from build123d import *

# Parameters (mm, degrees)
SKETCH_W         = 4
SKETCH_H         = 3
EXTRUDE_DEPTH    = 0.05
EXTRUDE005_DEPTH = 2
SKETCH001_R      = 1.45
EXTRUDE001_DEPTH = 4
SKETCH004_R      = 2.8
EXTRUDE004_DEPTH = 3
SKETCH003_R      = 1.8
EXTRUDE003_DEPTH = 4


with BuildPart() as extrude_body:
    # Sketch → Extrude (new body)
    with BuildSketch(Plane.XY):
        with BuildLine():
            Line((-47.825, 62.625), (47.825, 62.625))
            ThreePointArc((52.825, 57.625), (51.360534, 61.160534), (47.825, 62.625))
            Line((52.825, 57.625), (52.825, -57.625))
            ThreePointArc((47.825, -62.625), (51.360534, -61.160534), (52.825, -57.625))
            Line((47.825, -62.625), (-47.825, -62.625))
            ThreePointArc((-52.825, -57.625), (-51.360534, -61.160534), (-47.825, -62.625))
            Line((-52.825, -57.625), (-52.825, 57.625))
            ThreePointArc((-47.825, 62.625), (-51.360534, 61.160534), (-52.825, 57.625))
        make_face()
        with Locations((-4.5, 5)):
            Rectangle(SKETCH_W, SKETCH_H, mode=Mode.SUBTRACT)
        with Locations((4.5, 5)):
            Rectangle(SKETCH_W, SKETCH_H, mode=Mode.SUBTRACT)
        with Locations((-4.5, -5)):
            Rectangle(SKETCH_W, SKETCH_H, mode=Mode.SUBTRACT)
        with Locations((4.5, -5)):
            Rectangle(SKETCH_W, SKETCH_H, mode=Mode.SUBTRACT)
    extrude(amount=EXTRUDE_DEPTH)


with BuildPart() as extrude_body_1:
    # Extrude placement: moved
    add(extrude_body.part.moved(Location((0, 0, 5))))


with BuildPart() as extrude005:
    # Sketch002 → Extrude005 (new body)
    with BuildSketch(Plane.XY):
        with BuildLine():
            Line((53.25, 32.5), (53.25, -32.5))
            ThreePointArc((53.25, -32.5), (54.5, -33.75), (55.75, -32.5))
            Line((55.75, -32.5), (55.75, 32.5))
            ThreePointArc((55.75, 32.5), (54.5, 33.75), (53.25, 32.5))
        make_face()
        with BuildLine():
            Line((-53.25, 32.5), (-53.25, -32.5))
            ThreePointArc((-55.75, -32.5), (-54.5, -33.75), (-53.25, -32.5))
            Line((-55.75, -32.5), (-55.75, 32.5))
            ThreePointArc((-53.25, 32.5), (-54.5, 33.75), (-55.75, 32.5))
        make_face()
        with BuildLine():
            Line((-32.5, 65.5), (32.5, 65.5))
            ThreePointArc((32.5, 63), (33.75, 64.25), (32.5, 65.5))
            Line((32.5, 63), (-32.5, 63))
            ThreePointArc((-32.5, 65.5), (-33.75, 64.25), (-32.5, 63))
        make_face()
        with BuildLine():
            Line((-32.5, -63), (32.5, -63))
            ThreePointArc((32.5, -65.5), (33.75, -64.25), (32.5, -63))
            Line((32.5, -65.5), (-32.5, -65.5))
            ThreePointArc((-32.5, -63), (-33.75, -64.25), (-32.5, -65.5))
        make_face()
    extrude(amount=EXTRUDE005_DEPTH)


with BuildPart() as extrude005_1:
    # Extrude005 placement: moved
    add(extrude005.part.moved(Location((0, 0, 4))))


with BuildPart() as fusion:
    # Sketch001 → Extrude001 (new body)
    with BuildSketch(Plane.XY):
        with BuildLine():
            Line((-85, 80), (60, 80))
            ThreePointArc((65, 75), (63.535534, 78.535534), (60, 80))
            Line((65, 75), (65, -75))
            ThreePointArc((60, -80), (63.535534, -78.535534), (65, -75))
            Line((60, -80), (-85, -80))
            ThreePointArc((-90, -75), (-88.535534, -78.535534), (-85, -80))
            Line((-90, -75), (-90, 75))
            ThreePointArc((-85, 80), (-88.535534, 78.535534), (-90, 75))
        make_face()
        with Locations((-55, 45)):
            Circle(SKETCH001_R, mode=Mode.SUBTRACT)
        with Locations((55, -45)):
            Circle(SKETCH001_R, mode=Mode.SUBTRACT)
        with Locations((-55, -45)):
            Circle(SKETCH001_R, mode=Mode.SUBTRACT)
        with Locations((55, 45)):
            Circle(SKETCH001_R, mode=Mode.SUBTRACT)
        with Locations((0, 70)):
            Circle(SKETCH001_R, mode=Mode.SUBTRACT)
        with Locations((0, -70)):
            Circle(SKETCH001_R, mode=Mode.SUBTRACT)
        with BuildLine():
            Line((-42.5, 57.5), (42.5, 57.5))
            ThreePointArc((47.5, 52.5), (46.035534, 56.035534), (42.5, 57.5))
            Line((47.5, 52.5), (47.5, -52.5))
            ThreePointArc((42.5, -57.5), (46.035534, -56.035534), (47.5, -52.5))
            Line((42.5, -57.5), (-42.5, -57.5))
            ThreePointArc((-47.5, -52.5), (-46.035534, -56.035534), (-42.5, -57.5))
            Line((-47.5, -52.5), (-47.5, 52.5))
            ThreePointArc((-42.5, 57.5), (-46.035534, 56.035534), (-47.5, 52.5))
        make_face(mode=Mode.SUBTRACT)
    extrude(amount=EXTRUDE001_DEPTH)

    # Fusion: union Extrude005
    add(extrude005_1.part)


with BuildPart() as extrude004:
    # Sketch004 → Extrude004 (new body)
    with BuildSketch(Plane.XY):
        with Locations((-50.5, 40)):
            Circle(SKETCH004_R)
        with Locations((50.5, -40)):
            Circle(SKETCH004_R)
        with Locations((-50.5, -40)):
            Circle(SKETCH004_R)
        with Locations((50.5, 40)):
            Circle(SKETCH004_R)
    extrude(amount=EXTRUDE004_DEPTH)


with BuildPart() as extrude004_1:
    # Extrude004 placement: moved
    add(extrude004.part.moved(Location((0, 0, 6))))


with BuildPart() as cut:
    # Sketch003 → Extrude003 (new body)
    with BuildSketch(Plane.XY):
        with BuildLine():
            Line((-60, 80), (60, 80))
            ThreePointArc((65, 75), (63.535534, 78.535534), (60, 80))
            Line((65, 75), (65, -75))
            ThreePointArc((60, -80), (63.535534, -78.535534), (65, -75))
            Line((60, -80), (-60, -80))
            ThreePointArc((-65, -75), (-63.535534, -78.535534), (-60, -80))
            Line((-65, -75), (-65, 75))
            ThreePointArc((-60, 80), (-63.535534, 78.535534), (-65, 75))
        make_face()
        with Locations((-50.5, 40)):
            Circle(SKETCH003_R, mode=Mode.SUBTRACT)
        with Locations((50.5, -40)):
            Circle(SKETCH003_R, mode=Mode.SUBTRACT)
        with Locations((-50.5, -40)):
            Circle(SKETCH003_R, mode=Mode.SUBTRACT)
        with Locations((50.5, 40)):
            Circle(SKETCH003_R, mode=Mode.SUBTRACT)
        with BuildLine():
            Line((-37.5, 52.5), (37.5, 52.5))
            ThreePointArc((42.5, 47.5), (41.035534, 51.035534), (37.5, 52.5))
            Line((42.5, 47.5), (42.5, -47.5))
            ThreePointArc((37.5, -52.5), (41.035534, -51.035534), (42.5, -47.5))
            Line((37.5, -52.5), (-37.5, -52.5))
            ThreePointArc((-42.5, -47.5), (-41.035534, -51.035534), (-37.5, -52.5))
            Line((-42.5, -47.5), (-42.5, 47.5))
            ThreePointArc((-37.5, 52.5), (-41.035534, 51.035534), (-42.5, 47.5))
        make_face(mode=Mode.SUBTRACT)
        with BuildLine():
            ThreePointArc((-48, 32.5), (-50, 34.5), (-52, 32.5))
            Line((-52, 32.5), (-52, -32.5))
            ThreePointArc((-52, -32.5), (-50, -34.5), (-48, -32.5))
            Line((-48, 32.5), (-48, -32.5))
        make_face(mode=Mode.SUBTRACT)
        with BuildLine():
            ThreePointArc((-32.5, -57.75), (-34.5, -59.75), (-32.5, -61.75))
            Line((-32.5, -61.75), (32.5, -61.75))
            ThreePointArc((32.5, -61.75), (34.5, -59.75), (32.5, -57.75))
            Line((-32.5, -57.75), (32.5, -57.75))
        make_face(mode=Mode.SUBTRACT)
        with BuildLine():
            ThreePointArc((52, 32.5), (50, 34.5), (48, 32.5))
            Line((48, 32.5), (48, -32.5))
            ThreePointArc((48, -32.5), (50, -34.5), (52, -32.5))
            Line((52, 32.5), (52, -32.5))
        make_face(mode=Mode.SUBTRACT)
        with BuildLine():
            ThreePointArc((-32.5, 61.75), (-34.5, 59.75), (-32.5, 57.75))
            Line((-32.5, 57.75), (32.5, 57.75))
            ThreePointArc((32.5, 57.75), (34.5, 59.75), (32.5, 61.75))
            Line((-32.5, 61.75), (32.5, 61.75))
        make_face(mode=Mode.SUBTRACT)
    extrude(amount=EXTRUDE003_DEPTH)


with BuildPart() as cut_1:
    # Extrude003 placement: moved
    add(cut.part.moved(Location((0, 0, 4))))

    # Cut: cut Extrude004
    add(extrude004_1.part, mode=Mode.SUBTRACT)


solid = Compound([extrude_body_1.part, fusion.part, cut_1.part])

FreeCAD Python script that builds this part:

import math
import FreeCAD as App
import Part
import Sketcher


def add_polygon(sketch, points):
    """Adds a closed chain of lines whose ends are joined by coincident constraints."""
    first, n = sketch.GeometryCount, len(points)
    for a, b in zip(points, points[1:] + points[:1]):
        sketch.addGeometry(Part.LineSegment(App.Vector(*a, 0), App.Vector(*b, 0)), False)
    for i in range(n):
        sketch.addConstraint(Sketcher.Constraint("Coincident", first + i, 2, first + (i + 1) % n, 1))

doc = App.newDocument("Part")
body = doc.addObject("PartDesign::Body", "Body")

# Sketch on XY plane
sketch1 = doc.addObject("Sketcher::SketchObject", "Sketch")
body.addObject(sketch1)
sketch1.AttachmentSupport = (doc.XY_Plane, [""])
sketch1.MapMode = "FlatFace"
sketch1.addGeometry(Part.LineSegment(App.Vector(47.8, 62.6, 0), App.Vector(-47.8, 62.6, 0)), False)  # 0
sketch1.addGeometry(Part.ArcOfCircle(Part.Circle(App.Vector(-47.8, 57.6, 0), App.Vector(0, 0, 1), 5), math.radians(90), math.radians(180)), False)  # 1
sketch1.addGeometry(Part.LineSegment(App.Vector(-52.8, 57.6, 0), App.Vector(-52.8, -57.6, 0)), False)  # 2
sketch1.addGeometry(Part.ArcOfCircle(Part.Circle(App.Vector(-47.8, -57.6, 0), App.Vector(0, 0, 1), 5), math.radians(180), math.radians(270)), False)  # 3
sketch1.addGeometry(Part.LineSegment(App.Vector(-47.8, -62.6, 0), App.Vector(47.8, -62.6, 0)), False)  # 4
sketch1.addGeometry(Part.ArcOfCircle(Part.Circle(App.Vector(47.8, -57.6, 0), App.Vector(0, 0, 1), 5), math.radians(-90), math.radians(0)), False)  # 5
sketch1.addGeometry(Part.LineSegment(App.Vector(52.8, -57.6, 0), App.Vector(52.8, 57.6, 0)), False)  # 6
sketch1.addGeometry(Part.ArcOfCircle(Part.Circle(App.Vector(47.8, 57.6, 0), App.Vector(0, 0, 1), 5), math.radians(0), math.radians(90)), False)  # 7
add_polygon(sketch1, [(2.5, -6.5), (2.5, -3.5), (6.5, -3.5), (6.5, -6.5)])  # lines 8-11
add_polygon(sketch1, [(-6.5, -6.5), (-6.5, -3.5), (-2.5, -3.5), (-2.5, -6.5)])  # lines 12-15
add_polygon(sketch1, [(2.5, 3.5), (2.5, 6.5), (6.5, 6.5), (6.5, 3.5)])  # lines 16-19
add_polygon(sketch1, [(-6.5, 3.5), (-6.5, 6.5), (-2.5, 6.5), (-2.5, 3.5)])  # lines 20-23
sketch1.addConstraint(Sketcher.Constraint("Tangent", 0, 2, 1, 1))
sketch1.addConstraint(Sketcher.Constraint("Tangent", 1, 2, 2, 1))
sketch1.addConstraint(Sketcher.Constraint("Tangent", 2, 2, 3, 1))
sketch1.addConstraint(Sketcher.Constraint("Tangent", 3, 2, 4, 1))
sketch1.addConstraint(Sketcher.Constraint("Tangent", 4, 2, 5, 1))
sketch1.addConstraint(Sketcher.Constraint("Tangent", 5, 2, 6, 1))
sketch1.addConstraint(Sketcher.Constraint("Tangent", 6, 2, 7, 1))
sketch1.addConstraint(Sketcher.Constraint("Tangent", 7, 2, 0, 1))
sketch1.addConstraint(Sketcher.Constraint("Horizontal", 0))
sketch1.addConstraint(Sketcher.Constraint("Vertical", 2))
sketch1.addConstraint(Sketcher.Constraint("Horizontal", 4))
sketch1.addConstraint(Sketcher.Constraint("Vertical", 6))
sketch1.addConstraint(Sketcher.Constraint("Vertical", 8))
sketch1.addConstraint(Sketcher.Constraint("Horizontal", 9))
sketch1.addConstraint(Sketcher.Constraint("Vertical", 10))
sketch1.addConstraint(Sketcher.Constraint("Horizontal", 11))
sketch1.addConstraint(Sketcher.Constraint("Vertical", 12))
sketch1.addConstraint(Sketcher.Constraint("Horizontal", 13))
sketch1.addConstraint(Sketcher.Constraint("Vertical", 14))
sketch1.addConstraint(Sketcher.Constraint("Horizontal", 15))
sketch1.addConstraint(Sketcher.Constraint("Vertical", 16))
sketch1.addConstraint(Sketcher.Constraint("Horizontal", 17))
sketch1.addConstraint(Sketcher.Constraint("Vertical", 18))
sketch1.addConstraint(Sketcher.Constraint("Horizontal", 19))
sketch1.addConstraint(Sketcher.Constraint("Vertical", 20))
sketch1.addConstraint(Sketcher.Constraint("Horizontal", 21))
sketch1.addConstraint(Sketcher.Constraint("Vertical", 22))
sketch1.addConstraint(Sketcher.Constraint("Horizontal", 23))
sketch1.addConstraint(Sketcher.Constraint("Equal", 1, 3))
sketch1.addConstraint(Sketcher.Constraint("Equal", 3, 5))
sketch1.addConstraint(Sketcher.Constraint("Equal", 5, 7))
sketch1.addConstraint(Sketcher.Constraint("Symmetric", 1, 3, 5, 3, -1, 1))
sketch1.addConstraint(Sketcher.Constraint("Symmetric", 14, 2, 16, 2, -1, 1))
sketch1.addConstraint(Sketcher.Constraint("Symmetric", 12, 2, 18, 2, -1, 1))
sketch1.addConstraint(Sketcher.Constraint("Symmetric", 10, 2, 20, 2, -1, 1))
sketch1.addConstraint(Sketcher.Constraint("Symmetric", 8, 2, 22, 2, -1, 1))
sketch1.addConstraint(Sketcher.Constraint("Symmetric", 9, 2, 12, 2, -2))
sketch1.addConstraint(Sketcher.Constraint("Symmetric", 11, 2, 14, 2, -2))
sketch1.addConstraint(Sketcher.Constraint("Radius", 1, 5.0))
sketch1.addConstraint(Sketcher.Constraint("DistanceX", 9, 1, 9, 2, 4.0))
sketch1.addConstraint(Sketcher.Constraint("DistanceY", 8, 1, 8, 2, 3.0))
sketch1.addConstraint(Sketcher.Constraint("DistanceX", 12, 2, 8, 2, 9.0))
sketch1.addConstraint(Sketcher.Constraint("DistanceY", 8, 2, 16, 2, 10.0))
sketch1.addConstraint(Sketcher.Constraint("DistanceX", 0, 2, 0, 1, 95.65))
sketch1.addConstraint(Sketcher.Constraint("DistanceY", 2, 2, 2, 1, 115.25))
pad1 = doc.addObject("PartDesign::Pad", "Pad")
body.addObject(pad1)
pad1.Profile = sketch1
pad1.Length = 0.05
body2 = doc.addObject("PartDesign::Body", "Body001")
doc.recompute()

body.Placement = App.Placement(App.Vector(0, 0, 5), App.Rotation(App.Vector(0, 0, 1), 0))
boolean = doc.addObject("PartDesign::Boolean", "Boolean")
body2.addObject(boolean)
boolean.Type = "Fuse"
boolean.addObjects([body])
body3 = doc.addObject("PartDesign::Body", "Body002")
body3.AllowCompound = True

# Sketch on XY plane
sketch2 = doc.addObject("Sketcher::SketchObject", "Sketch001")
body3.addObject(sketch2)
sketch2.AttachmentSupport = (doc.getObject("XY_Plane002"), [""])
sketch2.MapMode = "FlatFace"
sketch2.addGeometry(Part.LineSegment(App.Vector(53.2, 32.5, 0), App.Vector(53.2, -32.5, 0)), False)
sketch2.addGeometry(Part.ArcOfCircle(Part.Circle(App.Vector(54.5, -32.5, 0), App.Vector(0, 0, 1), 1.2), math.radians(180), math.radians(360)), False)
sketch2.addGeometry(Part.LineSegment(App.Vector(55.8, -32.5, 0), App.Vector(55.8, 32.5, 0)), False)
sketch2.addGeometry(Part.ArcOfCircle(Part.Circle(App.Vector(54.5, 32.5, 0), App.Vector(0, 0, 1), 1.2), math.radians(0), math.radians(180)), False)
sketch2.addGeometry(Part.LineSegment(App.Vector(-53.2, -32.5, 0), App.Vector(-53.2, 32.5, 0)), False)
sketch2.addGeometry(Part.ArcOfCircle(Part.Circle(App.Vector(-54.5, 32.5, 0), App.Vector(0, 0, 1), 1.2), math.radians(0), math.radians(180)), False)
sketch2.addGeometry(Part.LineSegment(App.Vector(-55.8, 32.5, 0), App.Vector(-55.8, -32.5, 0)), False)
sketch2.addGeometry(Part.ArcOfCircle(Part.Circle(App.Vector(-54.5, -32.5, 0), App.Vector(0, 0, 1), 1.2), math.radians(180), math.radians(360)), False)
sketch2.addGeometry(Part.LineSegment(App.Vector(32.5, 65.5, 0), App.Vector(-32.5, 65.5, 0)), False)
sketch2.addGeometry(Part.ArcOfCircle(Part.Circle(App.Vector(-32.5, 64.2, 0), App.Vector(0, 0, 1), 1.2), math.radians(90), math.radians(270)), False)
sketch2.addGeometry(Part.LineSegment(App.Vector(-32.5, 63, 0), App.Vector(32.5, 63, 0)), False)
sketch2.addGeometry(Part.ArcOfCircle(Part.Circle(App.Vector(32.5, 64.2, 0), App.Vector(0, 0, 1), 1.2), math.radians(-90), math.radians(90)), False)
sketch2.addGeometry(Part.LineSegment(App.Vector(32.5, -63, 0), App.Vector(-32.5, -63, 0)), False)
sketch2.addGeometry(Part.ArcOfCircle(Part.Circle(App.Vector(-32.5, -64.2, 0), App.Vector(0, 0, 1), 1.2), math.radians(90), math.radians(270)), False)
sketch2.addGeometry(Part.LineSegment(App.Vector(-32.5, -65.5, 0), App.Vector(32.5, -65.5, 0)), False)
sketch2.addGeometry(Part.ArcOfCircle(Part.Circle(App.Vector(32.5, -64.2, 0), App.Vector(0, 0, 1), 1.2), math.radians(-90), math.radians(90)), False)
sketch2.addConstraint(Sketcher.Constraint("Tangent", 0, 2, 1, 1))
sketch2.addConstraint(Sketcher.Constraint("Tangent", 1, 2, 2, 1))
sketch2.addConstraint(Sketcher.Constraint("Tangent", 2, 2, 3, 1))
sketch2.addConstraint(Sketcher.Constraint("Tangent", 3, 2, 0, 1))
sketch2.addConstraint(Sketcher.Constraint("Tangent", 4, 2, 5, 1))
sketch2.addConstraint(Sketcher.Constraint("Tangent", 5, 2, 6, 1))
sketch2.addConstraint(Sketcher.Constraint("Tangent", 6, 2, 7, 1))
sketch2.addConstraint(Sketcher.Constraint("Tangent", 7, 2, 4, 1))
sketch2.addConstraint(Sketcher.Constraint("Tangent", 8, 2, 9, 1))
sketch2.addConstraint(Sketcher.Constraint("Tangent", 9, 2, 10, 1))
sketch2.addConstraint(Sketcher.Constraint("Tangent", 10, 2, 11, 1))
sketch2.addConstraint(Sketcher.Constraint("Tangent", 11, 2, 8, 1))
sketch2.addConstraint(Sketcher.Constraint("Tangent", 12, 2, 13, 1))
sketch2.addConstraint(Sketcher.Constraint("Tangent", 13, 2, 14, 1))
sketch2.addConstraint(Sketcher.Constraint("Tangent", 14, 2, 15, 1))
sketch2.addConstraint(Sketcher.Constraint("Tangent", 15, 2, 12, 1))
sketch2.addConstraint(Sketcher.Constraint("Vertical", 0))
sketch2.addConstraint(Sketcher.Constraint("Vertical", 2))
sketch2.addConstraint(Sketcher.Constraint("Vertical", 4))
sketch2.addConstraint(Sketcher.Constraint("Vertical", 6))
sketch2.addConstraint(Sketcher.Constraint("Horizontal", 8))
sketch2.addConstraint(Sketcher.Constraint("Horizontal", 10))
sketch2.addConstraint(Sketcher.Constraint("Horizontal", 12))
sketch2.addConstraint(Sketcher.Constraint("Horizontal", 14))
sketch2.addConstraint(Sketcher.Constraint("Equal", 3, 5))
sketch2.addConstraint(Sketcher.Constraint("Equal", 7, 9))
sketch2.addConstraint(Sketcher.Constraint("Equal", 11, 13))
sketch2.addConstraint(Sketcher.Constraint("Symmetric", 1, 3, 5, 3, -1, 1))
sketch2.addConstraint(Sketcher.Constraint("Symmetric", 11, 3, 13, 3, -1, 1))
sketch2.addConstraint(Sketcher.Constraint("Horizontal", 3, 3, 5, 3))
sketch2.addConstraint(Sketcher.Constraint("Horizontal", 1, 3, 7, 3))
sketch2.addConstraint(Sketcher.Constraint("Vertical", 9, 3, 13, 3))
sketch2.addConstraint(Sketcher.Constraint("Vertical", 11, 3, 15, 3))
sketch2.addConstraint(Sketcher.Constraint("Equal", 14, 0))
sketch2.addConstraint(Sketcher.Constraint("DistanceX", 8, 2, 8, 1, 65.0))
sketch2.addConstraint(Sketcher.Constraint("Radius", 1, 1.25))
sketch2.addConstraint(Sketcher.Constraint("DistanceY", -1, 1, 9, 2, 63.0))
sketch2.addConstraint(Sketcher.Constraint("DistanceX", 5, 3, 3, 3, 109.0))
pad2 = doc.addObject("PartDesign::Pad", "Pad001")
body3.addObject(pad2)
pad2.Profile = sketch2
pad2.Length = 2
body4 = doc.addObject("PartDesign::Body", "Body003")
body4.AllowCompound = True
doc.recompute()

body3.Placement = App.Placement(App.Vector(0, 0, 4), App.Rotation(App.Vector(0, 0, 1), 0))
boolean2 = doc.addObject("PartDesign::Boolean", "Boolean001")
body4.addObject(boolean2)
boolean2.Type = "Fuse"
boolean2.addObjects([body3])
body5 = doc.addObject("PartDesign::Body", "Body004")

# Sketch on XY plane
sketch3 = doc.addObject("Sketcher::SketchObject", "Sketch002")
body5.addObject(sketch3)
sketch3.AttachmentSupport = (doc.getObject("XY_Plane004"), [""])
sketch3.MapMode = "FlatFace"
sketch3.addGeometry(Part.LineSegment(App.Vector(60, 80, 0), App.Vector(-85, 80, 0)), False)
sketch3.addGeometry(Part.ArcOfCircle(Part.Circle(App.Vector(-85, 75, 0), App.Vector(0, 0, 1), 5), math.radians(90), math.radians(180)), False)
sketch3.addGeometry(Part.LineSegment(App.Vector(-90, 75, 0), App.Vector(-90, -75, 0)), False)
sketch3.addGeometry(Part.ArcOfCircle(Part.Circle(App.Vector(-85, -75, 0), App.Vector(0, 0, 1), 5), math.radians(180), math.radians(270)), False)
sketch3.addGeometry(Part.LineSegment(App.Vector(-85, -80, 0), App.Vector(60, -80, 0)), False)
sketch3.addGeometry(Part.ArcOfCircle(Part.Circle(App.Vector(60, -75, 0), App.Vector(0, 0, 1), 5), math.radians(-90), math.radians(0)), False)
sketch3.addGeometry(Part.LineSegment(App.Vector(65, -75, 0), App.Vector(65, 75, 0)), False)
sketch3.addGeometry(Part.ArcOfCircle(Part.Circle(App.Vector(60, 75, 0), App.Vector(0, 0, 1), 5), math.radians(0), math.radians(90)), False)
sketch3.addGeometry(Part.Circle(App.Vector(55, -45, 0), App.Vector(0, 0, 1), 1.4), False)
sketch3.addGeometry(Part.Circle(App.Vector(0, -70, 0), App.Vector(0, 0, 1), 1.4), False)
sketch3.addGeometry(Part.Circle(App.Vector(-55, -45, 0), App.Vector(0, 0, 1), 1.4), False)
sketch3.addGeometry(Part.LineSegment(App.Vector(-42.5, 57.5, 0), App.Vector(42.5, 57.5, 0)), False)
sketch3.addGeometry(Part.ArcOfCircle(Part.Circle(App.Vector(42.5, 52.5, 0), App.Vector(0, 0, 1), 5), math.radians(0), math.radians(90)), False)
sketch3.addGeometry(Part.LineSegment(App.Vector(47.5, 52.5, 0), App.Vector(47.5, -52.5, 0)), False)
sketch3.addGeometry(Part.ArcOfCircle(Part.Circle(App.Vector(42.5, -52.5, 0), App.Vector(0, 0, 1), 5), math.radians(-90), math.radians(0)), False)
sketch3.addGeometry(Part.LineSegment(App.Vector(42.5, -57.5, 0), App.Vector(-42.5, -57.5, 0)), False)
sketch3.addGeometry(Part.ArcOfCircle(Part.Circle(App.Vector(-42.5, -52.5, 0), App.Vector(0, 0, 1), 5), math.radians(180), math.radians(270)), False)
sketch3.addGeometry(Part.LineSegment(App.Vector(-47.5, -52.5, 0), App.Vector(-47.5, 52.5, 0)), False)
sketch3.addGeometry(Part.ArcOfCircle(Part.Circle(App.Vector(-42.5, 52.5, 0), App.Vector(0, 0, 1), 5), math.radians(90), math.radians(180)), False)
sketch3.addGeometry(Part.Circle(App.Vector(55, 45, 0), App.Vector(0, 0, 1), 1.4), False)
sketch3.addGeometry(Part.Circle(App.Vector(0, 70, 0), App.Vector(0, 0, 1), 1.4), False)
sketch3.addGeometry(Part.Circle(App.Vector(-55, 45, 0), App.Vector(0, 0, 1), 1.4), False)
sketch3.addConstraint(Sketcher.Constraint("Tangent", 0, 2, 1, 1))
sketch3.addConstraint(Sketcher.Constraint("Tangent", 1, 2, 2, 1))
sketch3.addConstraint(Sketcher.Constraint("Tangent", 2, 2, 3, 1))
sketch3.addConstraint(Sketcher.Constraint("Tangent", 3, 2, 4, 1))
sketch3.addConstraint(Sketcher.Constraint("Tangent", 4, 2, 5, 1))
sketch3.addConstraint(Sketcher.Constraint("Tangent", 5, 2, 6, 1))
sketch3.addConstraint(Sketcher.Constraint("Tangent", 6, 2, 7, 1))
sketch3.addConstraint(Sketcher.Constraint("Tangent", 7, 2, 0, 1))
sketch3.addConstraint(Sketcher.Constraint("Tangent", 11, 2, 12, 2))
sketch3.addConstraint(Sketcher.Constraint("Tangent", 12, 1, 13, 1))
sketch3.addConstraint(Sketcher.Constraint("Tangent", 13, 2, 14, 2))
sketch3.addConstraint(Sketcher.Constraint("Tangent", 14, 1, 15, 1))
sketch3.addConstraint(Sketcher.Constraint("Tangent", 15, 2, 16, 2))
sketch3.addConstraint(Sketcher.Constraint("Tangent", 16, 1, 17, 1))
sketch3.addConstraint(Sketcher.Constraint("Tangent", 17, 2, 18, 2))
sketch3.addConstraint(Sketcher.Constraint("Tangent", 18, 1, 11, 1))
sketch3.addConstraint(Sketcher.Constraint("Horizontal", 0))
sketch3.addConstraint(Sketcher.Constraint("Vertical", 2))
sketch3.addConstraint(Sketcher.Constraint("Horizontal", 4))
sketch3.addConstraint(Sketcher.Constraint("Vertical", 6))
sketch3.addConstraint(Sketcher.Constraint("Horizontal", 11))
sketch3.addConstraint(Sketcher.Constraint("Vertical", 13))
sketch3.addConstraint(Sketcher.Constraint("Horizontal", 15))
sketch3.addConstraint(Sketcher.Constraint("Vertical", 17))
sketch3.addConstraint(Sketcher.Constraint("Equal", 1, 3))
sketch3.addConstraint(Sketcher.Constraint("Equal", 3, 5))
sketch3.addConstraint(Sketcher.Constraint("Equal", 5, 7))
sketch3.addConstraint(Sketcher.Constraint("Equal", 8, 9))
sketch3.addConstraint(Sketcher.Constraint("Equal", 9, 10))
sketch3.addConstraint(Sketcher.Constraint("Equal", 7, 12))
sketch3.addConstraint(Sketcher.Constraint("Equal", 12, 14))
sketch3.addConstraint(Sketcher.Constraint("Equal", 14, 16))
sketch3.addConstraint(Sketcher.Constraint("Equal", 16, 18))
sketch3.addConstraint(Sketcher.Constraint("Equal", 10, 19))
sketch3.addConstraint(Sketcher.Constraint("Equal", 19, 20))
sketch3.addConstraint(Sketcher.Constraint("Equal", 20, 21))
sketch3.addConstraint(Sketcher.Constraint("Symmetric", 12, 3, 16, 3, -1, 1))
sketch3.addConstraint(Sketcher.Constraint("Symmetric", 10, 3, 19, 3, -1, 1))
sketch3.addConstraint(Sketcher.Constraint("Symmetric", 9, 3, 20, 3, -1, 1))
sketch3.addConstraint(Sketcher.Constraint("Symmetric", 8, 3, 21, 3, -1, 1))
sketch3.addConstraint(Sketcher.Constraint("Symmetric", 8, 3, 10, 3, -2))
sketch3.addConstraint(Sketcher.Constraint("PointOnObject", 9, 3, -2))
sketch3.addConstraint(Sketcher.Constraint("Radius", 1, 5.0))
sketch3.addConstraint(Sketcher.Constraint("Diameter", 8, 2.9))
sketch3.addConstraint(Sketcher.Constraint("DistanceX", 0, 2, 0, 1, 145.0))
sketch3.addConstraint(Sketcher.Constraint("DistanceX", 11, 1, 11, 2, 85.0))
sketch3.addConstraint(Sketcher.Constraint("DistanceY", 2, 2, 2, 1, 150.0))
sketch3.addConstraint(Sketcher.Constraint("DistanceY", 13, 2, 13, 1, 105.0))
sketch3.addConstraint(Sketcher.Constraint("DistanceX", 1, 3, -1, 1, 85.0))
sketch3.addConstraint(Sketcher.Constraint("DistanceY", -1, 1, 1, 3, 75.0))
sketch3.addConstraint(Sketcher.Constraint("DistanceX", -1, 1, 8, 3, 55.0))
sketch3.addConstraint(Sketcher.Constraint("DistanceY", 8, 3, -1, 1, 45.0))
sketch3.addConstraint(Sketcher.Constraint("DistanceY", 9, 3, -1, 1, 70.0))
pad3 = doc.addObject("PartDesign::Pad", "Pad002")
body5.addObject(pad3)
pad3.Profile = sketch3
pad3.Length = 4
doc.recompute()

boolean3 = doc.addObject("PartDesign::Boolean", "Boolean002")
body5.addObject(boolean3)
boolean3.Type = "Fuse"
boolean3.addObjects([body4])
body6 = doc.addObject("PartDesign::Body", "Body005")
body6.AllowCompound = True

# Sketch on XY plane
sketch4 = doc.addObject("Sketcher::SketchObject", "Sketch003")
body6.addObject(sketch4)
sketch4.AttachmentSupport = (doc.getObject("XY_Plane005"), [""])
sketch4.MapMode = "FlatFace"
sketch4.addGeometry(Part.Circle(App.Vector(-50.5, 40, 0), App.Vector(0, 0, 1), 2.8), False)
sketch4.addGeometry(Part.Circle(App.Vector(50.5, -40, 0), App.Vector(0, 0, 1), 2.8), False)
sketch4.addGeometry(Part.Circle(App.Vector(-50.5, -40, 0), App.Vector(0, 0, 1), 2.8), False)
sketch4.addGeometry(Part.Circle(App.Vector(50.5, 40, 0), App.Vector(0, 0, 1), 2.8), False)
sketch4.addConstraint(Sketcher.Constraint("Equal", 0, 1))
sketch4.addConstraint(Sketcher.Constraint("Equal", 1, 2))
sketch4.addConstraint(Sketcher.Constraint("Equal", 2, 3))
sketch4.addConstraint(Sketcher.Constraint("Symmetric", 0, 3, 1, 3, -1, 1))
sketch4.addConstraint(Sketcher.Constraint("Symmetric", 2, 3, 3, 3, -1, 1))
sketch4.addConstraint(Sketcher.Constraint("Symmetric", 1, 3, 2, 3, -2))
sketch4.addConstraint(Sketcher.Constraint("Diameter", 0, 5.6))
sketch4.addConstraint(Sketcher.Constraint("DistanceY", -1, 1, 0, 3, 40.0))
sketch4.addConstraint(Sketcher.Constraint("DistanceX", 0, 3, 1, 3, 101.0))
pad4 = doc.addObject("PartDesign::Pad", "Pad003")
body6.addObject(pad4)
pad4.Profile = sketch4
pad4.Length = 3
body7 = doc.addObject("PartDesign::Body", "Body006")
body7.AllowCompound = True
doc.recompute()

body6.Placement = App.Placement(App.Vector(0, 0, 6), App.Rotation(App.Vector(0, 0, 1), 0))
boolean4 = doc.addObject("PartDesign::Boolean", "Boolean003")
body7.addObject(boolean4)
boolean4.Type = "Fuse"
boolean4.addObjects([body6])
body8 = doc.addObject("PartDesign::Body", "Body007")

# Sketch on XY plane
sketch5 = doc.addObject("Sketcher::SketchObject", "Sketch004")
body8.addObject(sketch5)
sketch5.AttachmentSupport = (doc.getObject("XY_Plane007"), [""])
sketch5.MapMode = "FlatFace"
sketch5.addGeometry(Part.LineSegment(App.Vector(60, 80, 0), App.Vector(-60, 80, 0)), False)
sketch5.addGeometry(Part.ArcOfCircle(Part.Circle(App.Vector(-60, 75, 0), App.Vector(0, 0, 1), 5), math.radians(90), math.radians(180)), False)
sketch5.addGeometry(Part.LineSegment(App.Vector(-65, 75, 0), App.Vector(-65, -75, 0)), False)
sketch5.addGeometry(Part.ArcOfCircle(Part.Circle(App.Vector(-60, -75, 0), App.Vector(0, 0, 1), 5), math.radians(180), math.radians(270)), False)
sketch5.addGeometry(Part.LineSegment(App.Vector(-60, -80, 0), App.Vector(60, -80, 0)), False)
sketch5.addGeometry(Part.ArcOfCircle(Part.Circle(App.Vector(60, -75, 0), App.Vector(0, 0, 1), 5), math.radians(-90), math.radians(0)), False)
sketch5.addGeometry(Part.LineSegment(App.Vector(65, -75, 0), App.Vector(65, 75, 0)), False)
sketch5.addGeometry(Part.ArcOfCircle(Part.Circle(App.Vector(60, 75, 0), App.Vector(0, 0, 1), 5), math.radians(0), math.radians(90)), False)
sketch5.addGeometry(Part.Circle(App.Vector(50.5, -40, 0), App.Vector(0, 0, 1), 1.8), False)
sketch5.addGeometry(Part.LineSegment(App.Vector(-32.5, -57.8, 0), App.Vector(32.5, -57.8, 0)), False)
sketch5.addGeometry(Part.ArcOfCircle(Part.Circle(App.Vector(32.5, -59.8, 0), App.Vector(0, 0, 1), 2), math.radians(-90), math.radians(90)), False)
sketch5.addGeometry(Part.LineSegment(App.Vector(32.5, -61.8, 0), App.Vector(-32.5, -61.8, 0)), False)
sketch5.addGeometry(Part.ArcOfCircle(Part.Circle(App.Vector(-32.5, -59.8, 0), App.Vector(0, 0, 1), 2), math.radians(90), math.radians(270)), False)
sketch5.addGeometry(Part.Circle(App.Vector(-50.5, -40, 0), App.Vector(0, 0, 1), 1.8), False)
sketch5.addGeometry(Part.LineSegment(App.Vector(52, 32.5, 0), App.Vector(52, -32.5, 0)), False)
sketch5.addGeometry(Part.ArcOfCircle(Part.Circle(App.Vector(50, -32.5, 0), App.Vector(0, 0, 1), 2), math.radians(180), math.radians(360)), False)
sketch5.addGeometry(Part.LineSegment(App.Vector(48, -32.5, 0), App.Vector(48, 32.5, 0)), False)
sketch5.addGeometry(Part.ArcOfCircle(Part.Circle(App.Vector(50, 32.5, 0), App.Vector(0, 0, 1), 2), math.radians(0), math.radians(180)), False)
sketch5.addGeometry(Part.Circle(App.Vector(50.5, 40, 0), App.Vector(0, 0, 1), 1.8), False)
sketch5.addGeometry(Part.LineSegment(App.Vector(-37.5, 52.5, 0), App.Vector(37.5, 52.5, 0)), False)
sketch5.addGeometry(Part.ArcOfCircle(Part.Circle(App.Vector(37.5, 47.5, 0), App.Vector(0, 0, 1), 5), math.radians(0), math.radians(90)), False)
sketch5.addGeometry(Part.LineSegment(App.Vector(42.5, 47.5, 0), App.Vector(42.5, -47.5, 0)), False)
sketch5.addGeometry(Part.ArcOfCircle(Part.Circle(App.Vector(37.5, -47.5, 0), App.Vector(0, 0, 1), 5), math.radians(-90), math.radians(0)), False)
sketch5.addGeometry(Part.LineSegment(App.Vector(37.5, -52.5, 0), App.Vector(-37.5, -52.5, 0)), False)
sketch5.addGeometry(Part.ArcOfCircle(Part.Circle(App.Vector(-37.5, -47.5, 0), App.Vector(0, 0, 1), 5), math.radians(180), math.radians(270)), False)
sketch5.addGeometry(Part.LineSegment(App.Vector(-42.5, -47.5, 0), App.Vector(-42.5, 47.5, 0)), False)
sketch5.addGeometry(Part.ArcOfCircle(Part.Circle(App.Vector(-37.5, 47.5, 0), App.Vector(0, 0, 1), 5), math.radians(90), math.radians(180)), False)
sketch5.addGeometry(Part.LineSegment(App.Vector(-48, 32.5, 0), App.Vector(-48, -32.5, 0)), False)
sketch5.addGeometry(Part.ArcOfCircle(Part.Circle(App.Vector(-50, -32.5, 0), App.Vector(0, 0, 1), 2), math.radians(180), math.radians(360)), False)
sketch5.addGeometry(Part.LineSegment(App.Vector(-52, -32.5, 0), App.Vector(-52, 32.5, 0)), False)
sketch5.addGeometry(Part.ArcOfCircle(Part.Circle(App.Vector(-50, 32.5, 0), App.Vector(0, 0, 1), 2), math.radians(0), math.radians(180)), False)
sketch5.addGeometry(Part.LineSegment(App.Vector(-32.5, 61.8, 0), App.Vector(32.5, 61.8, 0)), False)
sketch5.addGeometry(Part.ArcOfCircle(Part.Circle(App.Vector(32.5, 59.8, 0), App.Vector(0, 0, 1), 2), math.radians(-90), math.radians(90)), False)
sketch5.addGeometry(Part.LineSegment(App.Vector(32.5, 57.8, 0), App.Vector(-32.5, 57.8, 0)), False)
sketch5.addGeometry(Part.ArcOfCircle(Part.Circle(App.Vector(-32.5, 59.8, 0), App.Vector(0, 0, 1), 2), math.radians(90), math.radians(270)), False)
sketch5.addGeometry(Part.Circle(App.Vector(-50.5, 40, 0), App.Vector(0, 0, 1), 1.8), False)
sketch5.addConstraint(Sketcher.Constraint("Tangent", 0, 2, 1, 1))
sketch5.addConstraint(Sketcher.Constraint("Tangent", 1, 2, 2, 1))
sketch5.addConstraint(Sketcher.Constraint("Tangent", 2, 2, 3, 1))
sketch5.addConstraint(Sketcher.Constraint("Tangent", 3, 2, 4, 1))
sketch5.addConstraint(Sketcher.Constraint("Tangent", 4, 2, 5, 1))
sketch5.addConstraint(Sketcher.Constraint("Tangent", 5, 2, 6, 1))
sketch5.addConstraint(Sketcher.Constraint("Tangent", 6, 2, 7, 1))
sketch5.addConstraint(Sketcher.Constraint("Tangent", 7, 2, 0, 1))
sketch5.addConstraint(Sketcher.Constraint("Tangent", 9, 2, 10, 2))
sketch5.addConstraint(Sketcher.Constraint("Tangent", 10, 1, 11, 1))
sketch5.addConstraint(Sketcher.Constraint("Tangent", 11, 2, 12, 2))
sketch5.addConstraint(Sketcher.Constraint("Tangent", 12, 1, 9, 1))
sketch5.addConstraint(Sketcher.Constraint("Tangent", 14, 2, 15, 2))
sketch5.addConstraint(Sketcher.Constraint("Tangent", 15, 1, 16, 1))
sketch5.addConstraint(Sketcher.Constraint("Tangent", 16, 2, 17, 2))
sketch5.addConstraint(Sketcher.Constraint("Tangent", 17, 1, 14, 1))
sketch5.addConstraint(Sketcher.Constraint("Tangent", 19, 2, 20, 2))
sketch5.addConstraint(Sketcher.Constraint("Tangent", 20, 1, 21, 1))
sketch5.addConstraint(Sketcher.Constraint("Tangent", 21, 2, 22, 2))
sketch5.addConstraint(Sketcher.Constraint("Tangent", 22, 1, 23, 1))
sketch5.addConstraint(Sketcher.Constraint("Tangent", 23, 2, 24, 2))
sketch5.addConstraint(Sketcher.Constraint("Tangent", 24, 1, 25, 1))
sketch5.addConstraint(Sketcher.Constraint("Tangent", 25, 2, 26, 2))
sketch5.addConstraint(Sketcher.Constraint("Tangent", 26, 1, 19, 1))
sketch5.addConstraint(Sketcher.Constraint("Tangent", 27, 2, 28, 2))
sketch5.addConstraint(Sketcher.Constraint("Tangent", 28, 1, 29, 1))
sketch5.addConstraint(Sketcher.Constraint("Tangent", 29, 2, 30, 2))
sketch5.addConstraint(Sketcher.Constraint("Tangent", 30, 1, 27, 1))
sketch5.addConstraint(Sketcher.Constraint("Tangent", 31, 2, 32, 2))
sketch5.addConstraint(Sketcher.Constraint("Tangent", 32, 1, 33, 1))
sketch5.addConstraint(Sketcher.Constraint("Tangent", 33, 2, 34, 2))
sketch5.addConstraint(Sketcher.Constraint("Tangent", 34, 1, 31, 1))
sketch5.addConstraint(Sketcher.Constraint("Horizontal", 0))
sketch5.addConstraint(Sketcher.Constraint("Vertical", 2))
sketch5.addConstraint(Sketcher.Constraint("Horizontal", 4))
sketch5.addConstraint(Sketcher.Constraint("Vertical", 6))
sketch5.addConstraint(Sketcher.Constraint("Horizontal", 9))
sketch5.addConstraint(Sketcher.Constraint("Horizontal", 11))
sketch5.addConstraint(Sketcher.Constraint("Vertical", 14))
sketch5.addConstraint(Sketcher.Constraint("Vertical", 16))
sketch5.addConstraint(Sketcher.Constraint("Horizontal", 19))
sketch5.addConstraint(Sketcher.Constraint("Vertical", 21))
sketch5.addConstraint(Sketcher.Constraint("Horizontal", 23))
sketch5.addConstraint(Sketcher.Constraint("Vertical", 25))
sketch5.addConstraint(Sketcher.Constraint("Vertical", 27))
sketch5.addConstraint(Sketcher.Constraint("Vertical", 29))
sketch5.addConstraint(Sketcher.Constraint("Horizontal", 31))
sketch5.addConstraint(Sketcher.Constraint("Horizontal", 33))
sketch5.addConstraint(Sketcher.Constraint("Equal", 1, 3))
sketch5.addConstraint(Sketcher.Constraint("Equal", 3, 5))
sketch5.addConstraint(Sketcher.Constraint("Equal", 5, 7))
sketch5.addConstraint(Sketcher.Constraint("Equal", 8, 13))
sketch5.addConstraint(Sketcher.Constraint("Equal", 12, 15))
sketch5.addConstraint(Sketcher.Constraint("Equal", 13, 18))
sketch5.addConstraint(Sketcher.Constraint("Equal", 7, 20))
sketch5.addConstraint(Sketcher.Constraint("Equal", 20, 22))
sketch5.addConstraint(Sketcher.Constraint("Equal", 22, 24))
sketch5.addConstraint(Sketcher.Constraint("Equal", 24, 26))
sketch5.addConstraint(Sketcher.Constraint("Equal", 17, 28))
sketch5.addConstraint(Sketcher.Constraint("Equal", 30, 32))
sketch5.addConstraint(Sketcher.Constraint("Equal", 18, 35))
sketch5.addConstraint(Sketcher.Constraint("Symmetric", 1, 3, 5, 3, -1, 1))
sketch5.addConstraint(Sketcher.Constraint("Symmetric", 13, 3, 18, 3, -1, 1))
sketch5.addConstraint(Sketcher.Constraint("Symmetric", 20, 3, 24, 3, -1, 1))
sketch5.addConstraint(Sketcher.Constraint("Symmetric", 17, 3, 28, 3, -1, 1))
sketch5.addConstraint(Sketcher.Constraint("Symmetric", 12, 3, 32, 3, -1, 1))
sketch5.addConstraint(Sketcher.Constraint("Symmetric", 8, 3, 35, 3, -1, 1))
sketch5.addConstraint(Sketcher.Constraint("Symmetric", 8, 3, 13, 3, -2))
sketch5.addConstraint(Sketcher.Constraint("Horizontal", 15, 3, 28, 3))
sketch5.addConstraint(Sketcher.Constraint("Horizontal", 17, 3, 30, 3))
sketch5.addConstraint(Sketcher.Constraint("Vertical", 10, 3, 32, 3))
sketch5.addConstraint(Sketcher.Constraint("Vertical", 12, 3, 34, 3))
sketch5.addConstraint(Sketcher.Constraint("Equal", 33, 14))
sketch5.addConstraint(Sketcher.Constraint("Radius", 1, 5.0))
sketch5.addConstraint(Sketcher.Constraint("Radius", 10, 2.0))
sketch5.addConstraint(Sketcher.Constraint("Diameter", 8, 3.6))
sketch5.addConstraint(Sketcher.Constraint("DistanceX", 0, 2, 0, 1, 120.0))
sketch5.addConstraint(Sketcher.Constraint("DistanceX", 9, 1, 9, 2, 65.0))
sketch5.addConstraint(Sketcher.Constraint("DistanceX", 19, 1, 19, 2, 75.0))
sketch5.addConstraint(Sketcher.Constraint("DistanceY", 2, 2, 2, 1, 150.0))
sketch5.addConstraint(Sketcher.Constraint("DistanceY", 21, 2, 21, 1, 95.0))
sketch5.addConstraint(Sketcher.Constraint("DistanceY", 8, 3, -1, 1, 40.0))
sketch5.addConstraint(Sketcher.Constraint("DistanceX", -1, 1, 15, 3, 50.0))
sketch5.addConstraint(Sketcher.Constraint("DistanceX", 10, 3, 8, 3, 18.0))
sketch5.addConstraint(Sketcher.Constraint("DistanceY", 10, 3, -1, 1, 59.75))
pad5 = doc.addObject("PartDesign::Pad", "Pad004")
body8.addObject(pad5)
pad5.Profile = sketch5
pad5.Length = 4
body9 = doc.addObject("PartDesign::Body", "Body008")
doc.recompute()

body8.Placement = App.Placement(App.Vector(0, 0, 4), App.Rotation(App.Vector(0, 0, 1), 0))
boolean5 = doc.addObject("PartDesign::Boolean", "Boolean004")
body9.addObject(boolean5)
boolean5.Type = "Fuse"
boolean5.addObjects([body8])
doc.recompute()

boolean6 = doc.addObject("PartDesign::Boolean", "Boolean005")
body9.addObject(boolean6)
boolean6.Type = "Cut"
boolean6.addObjects([body7])

doc.recompute()
